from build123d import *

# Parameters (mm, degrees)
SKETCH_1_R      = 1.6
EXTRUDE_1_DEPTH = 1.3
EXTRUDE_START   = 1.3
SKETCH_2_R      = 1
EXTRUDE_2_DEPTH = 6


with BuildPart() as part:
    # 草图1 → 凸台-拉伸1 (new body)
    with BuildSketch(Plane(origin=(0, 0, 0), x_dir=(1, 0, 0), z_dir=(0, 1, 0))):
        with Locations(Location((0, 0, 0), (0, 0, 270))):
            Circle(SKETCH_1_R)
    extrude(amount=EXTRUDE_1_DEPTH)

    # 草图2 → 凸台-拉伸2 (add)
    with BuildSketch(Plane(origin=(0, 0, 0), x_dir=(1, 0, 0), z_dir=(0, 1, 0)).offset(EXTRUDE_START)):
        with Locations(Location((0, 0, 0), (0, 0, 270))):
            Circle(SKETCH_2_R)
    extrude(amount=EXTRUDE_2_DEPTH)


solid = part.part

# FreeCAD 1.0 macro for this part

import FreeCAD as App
import Part
import Sketcher

V = App.Vector
Q = App.Units.Quantity

doc = App.newDocument("Part")
body = doc.addObject("PartDesign::Body", "Body")

# Sketch on XZ plane
sketch1 = body.newObject("Sketcher::SketchObject", "Sketch")
sketch1.AttachmentSupport = (doc.getObject("XZ_Plane"), [""])
sketch1.MapMode = "FlatFace"
sketch1.addGeometry(Part.Circle(V(0, 0, 0), V(0, 0, 1), 1.6), False)
sketch1.addConstraint([
    Sketcher.Constraint("Coincident", 0, 3, -1, 1),
    Sketcher.Constraint("Diameter", 0, Q("3.2 mm")),
])
pad1 = body.newObject("PartDesign::Pad", "Pad")
pad1.Profile = sketch1
pad1.Length = 1.3
pad1.Reversed = True

# Sketch on XZ plane
sketch2 = body.newObject("Sketcher::SketchObject", "Sketch001")
sketch2.AttachmentSupport = (doc.getObject("XZ_Plane"), [""])
sketch2.MapMode = "FlatFace"
sketch2.AttachmentOffset = App.Placement(V(0, 0, -1.3), App.Rotation())
sketch2.addGeometry(Part.Circle(V(0, 0, 0), V(0, 0, 1), 1), False)
sketch2.addConstraint([
    Sketcher.Constraint("Coincident", 0, 3, -1, 1),
    Sketcher.Constraint("Diameter", 0, Q("2 mm")),
])
pad2 = body.newObject("PartDesign::Pad", "Pad001")
pad2.Profile = sketch2
pad2.Length = 6
pad2.Reversed = True

doc.recompute()
